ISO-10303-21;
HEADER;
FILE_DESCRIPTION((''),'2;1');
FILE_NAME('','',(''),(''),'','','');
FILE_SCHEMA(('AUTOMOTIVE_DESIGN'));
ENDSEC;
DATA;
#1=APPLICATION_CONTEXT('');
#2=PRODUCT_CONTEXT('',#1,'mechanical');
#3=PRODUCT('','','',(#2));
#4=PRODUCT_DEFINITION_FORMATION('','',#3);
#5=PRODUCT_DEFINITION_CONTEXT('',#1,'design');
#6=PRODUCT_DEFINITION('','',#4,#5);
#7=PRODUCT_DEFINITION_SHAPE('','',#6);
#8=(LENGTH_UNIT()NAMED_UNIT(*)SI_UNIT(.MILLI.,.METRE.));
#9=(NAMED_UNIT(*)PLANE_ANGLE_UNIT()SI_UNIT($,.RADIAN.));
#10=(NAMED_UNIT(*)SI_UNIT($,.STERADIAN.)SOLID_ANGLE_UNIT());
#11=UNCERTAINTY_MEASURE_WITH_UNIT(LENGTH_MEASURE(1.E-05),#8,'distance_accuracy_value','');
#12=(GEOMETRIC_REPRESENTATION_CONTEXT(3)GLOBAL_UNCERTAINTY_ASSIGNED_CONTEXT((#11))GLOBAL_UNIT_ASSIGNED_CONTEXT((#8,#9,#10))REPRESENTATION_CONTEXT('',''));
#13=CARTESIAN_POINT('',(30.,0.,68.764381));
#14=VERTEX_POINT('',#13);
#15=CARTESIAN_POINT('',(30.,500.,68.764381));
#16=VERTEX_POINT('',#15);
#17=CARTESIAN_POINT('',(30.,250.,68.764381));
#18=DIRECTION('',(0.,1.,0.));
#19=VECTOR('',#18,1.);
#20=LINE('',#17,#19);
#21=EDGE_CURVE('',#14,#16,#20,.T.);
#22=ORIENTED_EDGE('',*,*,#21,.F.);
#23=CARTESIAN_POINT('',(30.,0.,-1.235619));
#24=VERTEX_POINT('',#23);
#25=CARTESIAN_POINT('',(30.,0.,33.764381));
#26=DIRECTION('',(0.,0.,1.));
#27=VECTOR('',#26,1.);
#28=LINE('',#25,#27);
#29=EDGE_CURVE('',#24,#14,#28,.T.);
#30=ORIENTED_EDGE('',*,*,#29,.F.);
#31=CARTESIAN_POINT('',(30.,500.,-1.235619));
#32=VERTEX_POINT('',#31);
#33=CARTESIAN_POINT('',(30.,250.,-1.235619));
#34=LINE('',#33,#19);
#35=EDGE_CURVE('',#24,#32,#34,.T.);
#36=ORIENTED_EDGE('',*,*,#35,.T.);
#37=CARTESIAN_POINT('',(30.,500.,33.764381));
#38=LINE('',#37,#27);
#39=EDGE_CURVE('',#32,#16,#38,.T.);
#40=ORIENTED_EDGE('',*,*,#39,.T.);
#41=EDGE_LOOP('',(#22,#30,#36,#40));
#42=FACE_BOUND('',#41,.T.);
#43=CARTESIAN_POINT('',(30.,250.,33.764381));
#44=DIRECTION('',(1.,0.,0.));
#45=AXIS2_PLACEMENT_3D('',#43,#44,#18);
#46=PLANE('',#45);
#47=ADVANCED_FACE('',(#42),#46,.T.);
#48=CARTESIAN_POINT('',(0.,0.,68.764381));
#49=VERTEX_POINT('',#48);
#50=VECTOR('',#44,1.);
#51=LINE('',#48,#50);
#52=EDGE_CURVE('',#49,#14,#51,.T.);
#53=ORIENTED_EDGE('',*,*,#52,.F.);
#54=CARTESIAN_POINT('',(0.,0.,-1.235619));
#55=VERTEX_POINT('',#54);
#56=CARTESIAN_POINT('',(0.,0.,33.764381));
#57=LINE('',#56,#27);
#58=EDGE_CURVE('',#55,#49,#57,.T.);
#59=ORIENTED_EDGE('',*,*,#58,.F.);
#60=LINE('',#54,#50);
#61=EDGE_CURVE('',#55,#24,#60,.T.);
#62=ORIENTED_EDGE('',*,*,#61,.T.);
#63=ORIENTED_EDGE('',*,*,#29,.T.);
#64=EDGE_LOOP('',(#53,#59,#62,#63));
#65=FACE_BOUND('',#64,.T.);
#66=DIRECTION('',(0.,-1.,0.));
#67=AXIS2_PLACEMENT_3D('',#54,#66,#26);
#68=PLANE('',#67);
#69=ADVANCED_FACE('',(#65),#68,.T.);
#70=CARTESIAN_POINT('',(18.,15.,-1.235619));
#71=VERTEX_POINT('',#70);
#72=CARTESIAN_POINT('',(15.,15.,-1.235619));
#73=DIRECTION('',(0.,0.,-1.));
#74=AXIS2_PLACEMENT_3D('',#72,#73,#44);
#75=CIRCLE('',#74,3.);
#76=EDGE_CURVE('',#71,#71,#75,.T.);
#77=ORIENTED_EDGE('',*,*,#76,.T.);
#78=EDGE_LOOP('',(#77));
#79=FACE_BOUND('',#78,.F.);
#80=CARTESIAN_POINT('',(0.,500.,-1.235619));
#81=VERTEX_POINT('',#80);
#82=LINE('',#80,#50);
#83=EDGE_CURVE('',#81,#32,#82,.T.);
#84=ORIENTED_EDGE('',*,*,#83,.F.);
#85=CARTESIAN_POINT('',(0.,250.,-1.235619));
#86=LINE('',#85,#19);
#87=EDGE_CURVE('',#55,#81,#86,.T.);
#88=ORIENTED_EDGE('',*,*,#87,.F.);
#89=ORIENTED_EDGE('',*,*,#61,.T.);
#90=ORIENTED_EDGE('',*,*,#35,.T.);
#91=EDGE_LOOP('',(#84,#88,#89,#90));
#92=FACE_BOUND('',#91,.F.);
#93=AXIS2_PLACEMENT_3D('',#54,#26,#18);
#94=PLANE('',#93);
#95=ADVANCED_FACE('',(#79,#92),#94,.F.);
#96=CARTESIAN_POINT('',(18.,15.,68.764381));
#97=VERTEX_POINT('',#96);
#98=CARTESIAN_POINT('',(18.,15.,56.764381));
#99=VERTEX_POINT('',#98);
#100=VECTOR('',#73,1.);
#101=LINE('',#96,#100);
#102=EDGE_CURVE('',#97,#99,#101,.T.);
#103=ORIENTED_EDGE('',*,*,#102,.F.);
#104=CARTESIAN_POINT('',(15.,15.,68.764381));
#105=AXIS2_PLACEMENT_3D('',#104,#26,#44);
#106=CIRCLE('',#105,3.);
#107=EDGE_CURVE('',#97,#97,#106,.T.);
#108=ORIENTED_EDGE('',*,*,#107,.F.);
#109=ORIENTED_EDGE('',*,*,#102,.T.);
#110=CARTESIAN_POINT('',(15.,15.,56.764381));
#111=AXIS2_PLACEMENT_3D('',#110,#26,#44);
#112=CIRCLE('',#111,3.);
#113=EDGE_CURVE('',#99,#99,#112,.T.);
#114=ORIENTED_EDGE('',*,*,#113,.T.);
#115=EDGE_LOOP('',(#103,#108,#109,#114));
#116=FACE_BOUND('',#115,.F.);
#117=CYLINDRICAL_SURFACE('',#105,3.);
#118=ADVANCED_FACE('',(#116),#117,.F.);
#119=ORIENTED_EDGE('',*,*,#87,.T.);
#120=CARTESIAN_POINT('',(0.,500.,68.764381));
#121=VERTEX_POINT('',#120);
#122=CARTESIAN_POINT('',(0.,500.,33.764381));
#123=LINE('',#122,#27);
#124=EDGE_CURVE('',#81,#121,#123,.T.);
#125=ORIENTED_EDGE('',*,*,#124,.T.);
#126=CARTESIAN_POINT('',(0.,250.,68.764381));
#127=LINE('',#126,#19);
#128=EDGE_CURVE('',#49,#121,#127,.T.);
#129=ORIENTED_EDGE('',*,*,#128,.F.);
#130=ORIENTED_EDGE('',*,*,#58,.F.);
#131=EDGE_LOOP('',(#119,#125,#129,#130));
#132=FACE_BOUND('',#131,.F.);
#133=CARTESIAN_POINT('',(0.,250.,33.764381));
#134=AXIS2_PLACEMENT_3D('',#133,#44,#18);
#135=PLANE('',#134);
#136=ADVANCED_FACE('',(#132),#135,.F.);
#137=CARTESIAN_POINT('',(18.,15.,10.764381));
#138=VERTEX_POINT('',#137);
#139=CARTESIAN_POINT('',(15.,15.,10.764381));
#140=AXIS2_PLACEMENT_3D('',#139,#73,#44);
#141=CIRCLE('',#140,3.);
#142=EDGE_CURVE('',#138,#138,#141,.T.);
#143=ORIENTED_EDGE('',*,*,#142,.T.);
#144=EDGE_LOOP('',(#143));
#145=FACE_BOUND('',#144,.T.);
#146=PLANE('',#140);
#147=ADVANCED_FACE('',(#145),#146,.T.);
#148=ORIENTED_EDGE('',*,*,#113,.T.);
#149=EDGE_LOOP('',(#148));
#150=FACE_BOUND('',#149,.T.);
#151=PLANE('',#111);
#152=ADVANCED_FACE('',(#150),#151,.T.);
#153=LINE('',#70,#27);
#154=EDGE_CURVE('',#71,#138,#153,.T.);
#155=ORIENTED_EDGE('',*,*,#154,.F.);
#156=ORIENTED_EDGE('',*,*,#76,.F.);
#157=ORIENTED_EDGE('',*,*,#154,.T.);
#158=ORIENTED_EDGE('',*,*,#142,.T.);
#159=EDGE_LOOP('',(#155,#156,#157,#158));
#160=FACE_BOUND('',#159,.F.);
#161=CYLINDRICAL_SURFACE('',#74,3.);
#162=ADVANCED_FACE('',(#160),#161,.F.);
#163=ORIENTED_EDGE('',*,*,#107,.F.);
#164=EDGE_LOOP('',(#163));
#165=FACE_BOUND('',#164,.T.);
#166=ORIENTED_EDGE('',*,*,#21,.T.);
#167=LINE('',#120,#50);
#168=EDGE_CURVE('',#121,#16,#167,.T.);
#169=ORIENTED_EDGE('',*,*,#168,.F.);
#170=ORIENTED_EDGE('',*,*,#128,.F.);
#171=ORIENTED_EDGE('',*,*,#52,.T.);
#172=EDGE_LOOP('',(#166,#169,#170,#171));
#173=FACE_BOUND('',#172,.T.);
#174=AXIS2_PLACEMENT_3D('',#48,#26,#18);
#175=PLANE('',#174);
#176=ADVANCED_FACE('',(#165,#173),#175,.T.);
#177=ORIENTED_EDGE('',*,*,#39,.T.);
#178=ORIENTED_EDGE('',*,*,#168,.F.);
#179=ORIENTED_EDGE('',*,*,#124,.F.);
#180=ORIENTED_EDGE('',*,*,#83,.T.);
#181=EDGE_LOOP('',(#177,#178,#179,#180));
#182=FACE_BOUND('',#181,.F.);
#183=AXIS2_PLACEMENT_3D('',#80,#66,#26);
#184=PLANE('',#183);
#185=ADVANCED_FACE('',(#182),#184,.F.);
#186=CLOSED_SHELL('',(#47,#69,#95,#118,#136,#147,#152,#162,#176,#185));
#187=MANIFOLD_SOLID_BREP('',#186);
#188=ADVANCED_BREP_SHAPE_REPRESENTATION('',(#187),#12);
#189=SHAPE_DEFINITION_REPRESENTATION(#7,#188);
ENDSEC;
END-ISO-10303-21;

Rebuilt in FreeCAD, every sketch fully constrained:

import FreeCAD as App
import Part
import Sketcher
Q = App.Units.Quantity

doc = App.newDocument("Part")
body = doc.addObject("PartDesign::Body", "Body")

# Sketch on YZ plane
sketch1 = doc.addObject("Sketcher::SketchObject", "Sketch")
body.addObject(sketch1)
sketch1.AttachmentSupport = (doc.YZ_Plane, [""])
sketch1.MapMode = "FlatFace"
sketch1.addGeometry([
    Part.LineSegment(App.Vector(0, 68.764381, 0), App.Vector(0, -1.235619, 0)),
    Part.LineSegment(App.Vector(0, -1.235619, 0), App.Vector(500, -1.235619, 0)),
    Part.LineSegment(App.Vector(500, -1.235619, 0), App.Vector(500, 68.764381, 0)),
    Part.LineSegment(App.Vector(500, 68.764381, 0), App.Vector(0, 68.764381, 0)),
], False)
sketch1.addConstraint([
    Sketcher.Constraint("Coincident", 0, 2, 1, 1),
    Sketcher.Constraint("Coincident", 1, 2, 2, 1),
    Sketcher.Constraint("Coincident", 2, 2, 3, 1),
    Sketcher.Constraint("Coincident", 3, 2, 0, 1),
    Sketcher.Constraint("Vertical", 0),
    Sketcher.Constraint("Horizontal", 1),
    Sketcher.Constraint("Vertical", 2),
    Sketcher.Constraint("Horizontal", 3),
    Sketcher.Constraint("PointOnObject", 0, 2, -2),
    Sketcher.Constraint("DistanceX", 1, 1, 1, 2, Q("500 mm")),
    Sketcher.Constraint("DistanceY", 0, 2, 0, 1, Q("70 mm")),
    Sketcher.Constraint("DistanceY", 0, 2, -1, 1, Q("1.235619 mm")),
])
pad1 = doc.addObject("PartDesign::Pad", "Pad")
body.addObject(pad1)
pad1.Profile = sketch1
pad1.Length = 30

# Sketch on XY plane
sketch2 = doc.addObject("Sketcher::SketchObject", "Sketch001")
body.addObject(sketch2)
sketch2.AttachmentSupport = (doc.XY_Plane, [""])
sketch2.MapMode = "FlatFace"
sketch2.AttachmentOffset = App.Placement(App.Vector(0, 0, 68.764381), App.Rotation())
sketch2.addGeometry(Part.Circle(App.Vector(15, 15, 0), App.Vector(0, 0, 1), 3), False)
sketch2.addConstraint([
    Sketcher.Constraint("Diameter", 0, Q("6 mm")),
    Sketcher.Constraint("DistanceX", -1, 1, 0, 3, Q("15 mm")),
    Sketcher.Constraint("DistanceY", -1, 1, 0, 3, Q("15 mm")),
])
pocket1 = doc.addObject("PartDesign::Pocket", "Pocket")
body.addObject(pocket1)
pocket1.Profile = sketch2
pocket1.Length = 12

# Sketch on XY plane
sketch3 = doc.addObject("Sketcher::SketchObject", "Sketch002")
body.addObject(sketch3)
sketch3.AttachmentSupport = (doc.XY_Plane, [""])
sketch3.MapMode = "FlatFace"
sketch3.AttachmentOffset = App.Placement(App.Vector(0, 0, -1.235619), App.Rotation())
sketch3.addGeometry(Part.Circle(App.Vector(15, 15, 0), App.Vector(0, 0, 1), 3), False)
sketch3.addConstraint([
    Sketcher.Constraint("Diameter", 0, Q("6 mm")),
    Sketcher.Constraint("DistanceX", -1, 1, 0, 3, Q("15 mm")),
    Sketcher.Constraint("DistanceY", -1, 1, 0, 3, Q("15 mm")),
])
pocket2 = doc.addObject("PartDesign::Pocket", "Pocket001")
body.addObject(pocket2)
pocket2.Profile = sketch3
pocket2.Length = 12
pocket2.Reversed = True

doc.recompute()
